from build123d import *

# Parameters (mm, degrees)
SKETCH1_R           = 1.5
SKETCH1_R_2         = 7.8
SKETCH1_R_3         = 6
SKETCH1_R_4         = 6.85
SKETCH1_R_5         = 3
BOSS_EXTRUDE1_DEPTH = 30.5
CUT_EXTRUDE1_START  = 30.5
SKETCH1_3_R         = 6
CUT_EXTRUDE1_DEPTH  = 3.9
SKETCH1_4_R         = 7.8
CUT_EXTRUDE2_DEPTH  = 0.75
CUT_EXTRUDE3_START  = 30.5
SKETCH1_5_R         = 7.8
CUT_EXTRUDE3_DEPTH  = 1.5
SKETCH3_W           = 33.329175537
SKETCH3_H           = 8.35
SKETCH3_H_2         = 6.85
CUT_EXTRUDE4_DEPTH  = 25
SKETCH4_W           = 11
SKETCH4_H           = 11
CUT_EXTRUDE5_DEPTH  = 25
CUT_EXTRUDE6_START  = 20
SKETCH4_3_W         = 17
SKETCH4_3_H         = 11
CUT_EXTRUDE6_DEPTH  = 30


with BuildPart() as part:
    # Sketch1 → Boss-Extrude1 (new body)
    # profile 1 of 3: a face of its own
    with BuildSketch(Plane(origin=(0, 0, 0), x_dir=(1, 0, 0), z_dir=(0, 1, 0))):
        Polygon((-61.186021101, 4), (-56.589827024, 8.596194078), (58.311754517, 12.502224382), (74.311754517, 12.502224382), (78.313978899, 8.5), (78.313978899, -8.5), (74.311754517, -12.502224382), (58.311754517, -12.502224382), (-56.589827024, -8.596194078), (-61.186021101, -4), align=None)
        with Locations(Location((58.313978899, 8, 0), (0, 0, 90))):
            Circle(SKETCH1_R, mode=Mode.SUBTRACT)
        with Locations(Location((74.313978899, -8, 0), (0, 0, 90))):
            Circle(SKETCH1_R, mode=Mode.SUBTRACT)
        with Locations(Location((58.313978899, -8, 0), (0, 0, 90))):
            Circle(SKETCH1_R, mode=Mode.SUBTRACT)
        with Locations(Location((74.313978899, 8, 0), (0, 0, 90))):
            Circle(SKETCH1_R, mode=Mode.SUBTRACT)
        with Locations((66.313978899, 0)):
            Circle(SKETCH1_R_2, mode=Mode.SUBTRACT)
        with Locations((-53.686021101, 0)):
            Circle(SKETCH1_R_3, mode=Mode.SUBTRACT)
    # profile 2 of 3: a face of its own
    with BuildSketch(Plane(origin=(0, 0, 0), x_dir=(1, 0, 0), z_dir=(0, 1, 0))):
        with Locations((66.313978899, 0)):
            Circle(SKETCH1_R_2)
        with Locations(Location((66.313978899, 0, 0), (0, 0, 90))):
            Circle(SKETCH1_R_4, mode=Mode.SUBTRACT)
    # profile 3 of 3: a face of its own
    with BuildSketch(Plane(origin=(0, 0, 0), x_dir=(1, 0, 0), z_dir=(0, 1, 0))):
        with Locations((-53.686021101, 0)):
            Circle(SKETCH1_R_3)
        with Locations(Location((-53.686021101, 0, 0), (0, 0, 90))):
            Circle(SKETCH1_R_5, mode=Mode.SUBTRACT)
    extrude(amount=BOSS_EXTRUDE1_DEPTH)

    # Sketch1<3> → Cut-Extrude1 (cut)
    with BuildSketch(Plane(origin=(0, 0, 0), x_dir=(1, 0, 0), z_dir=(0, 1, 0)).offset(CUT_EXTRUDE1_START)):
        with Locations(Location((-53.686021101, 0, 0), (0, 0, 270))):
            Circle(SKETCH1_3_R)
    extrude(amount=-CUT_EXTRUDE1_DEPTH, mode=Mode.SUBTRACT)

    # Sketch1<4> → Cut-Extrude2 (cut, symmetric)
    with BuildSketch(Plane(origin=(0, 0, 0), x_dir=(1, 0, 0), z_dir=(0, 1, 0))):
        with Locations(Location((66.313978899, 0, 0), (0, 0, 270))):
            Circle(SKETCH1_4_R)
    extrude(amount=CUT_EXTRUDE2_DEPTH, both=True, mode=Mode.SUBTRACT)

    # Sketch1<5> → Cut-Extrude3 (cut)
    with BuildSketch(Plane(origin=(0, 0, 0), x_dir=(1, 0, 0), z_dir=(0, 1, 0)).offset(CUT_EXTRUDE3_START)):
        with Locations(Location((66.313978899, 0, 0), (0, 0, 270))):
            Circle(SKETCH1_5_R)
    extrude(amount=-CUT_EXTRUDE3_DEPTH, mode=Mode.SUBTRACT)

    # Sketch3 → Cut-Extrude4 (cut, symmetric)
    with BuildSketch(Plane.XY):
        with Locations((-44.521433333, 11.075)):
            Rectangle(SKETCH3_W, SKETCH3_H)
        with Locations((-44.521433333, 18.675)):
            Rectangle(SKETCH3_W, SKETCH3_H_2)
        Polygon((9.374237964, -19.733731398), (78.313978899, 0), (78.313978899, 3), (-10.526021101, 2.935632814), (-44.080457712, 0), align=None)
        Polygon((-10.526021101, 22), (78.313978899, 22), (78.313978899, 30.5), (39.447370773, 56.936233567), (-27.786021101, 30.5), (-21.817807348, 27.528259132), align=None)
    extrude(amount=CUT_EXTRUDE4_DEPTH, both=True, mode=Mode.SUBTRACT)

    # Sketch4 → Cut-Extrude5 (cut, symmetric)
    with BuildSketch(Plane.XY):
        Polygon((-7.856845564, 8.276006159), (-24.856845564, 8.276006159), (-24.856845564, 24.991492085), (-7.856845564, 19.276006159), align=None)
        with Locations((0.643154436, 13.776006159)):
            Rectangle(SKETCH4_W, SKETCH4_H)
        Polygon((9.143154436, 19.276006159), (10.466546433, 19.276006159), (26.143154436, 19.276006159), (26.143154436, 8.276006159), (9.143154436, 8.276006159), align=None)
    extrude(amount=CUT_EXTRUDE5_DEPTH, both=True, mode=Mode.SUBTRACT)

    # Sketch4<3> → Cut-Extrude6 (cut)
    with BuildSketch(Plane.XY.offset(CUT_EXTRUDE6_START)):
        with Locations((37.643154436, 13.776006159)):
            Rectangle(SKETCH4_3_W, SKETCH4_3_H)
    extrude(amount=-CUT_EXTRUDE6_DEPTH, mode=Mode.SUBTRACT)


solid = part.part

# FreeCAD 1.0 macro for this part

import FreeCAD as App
import Part
import Sketcher
Q = App.Units.Quantity

doc = App.newDocument("Part")
body = doc.addObject("PartDesign::Body", "Body")

sketch1 = body.newObject("Sketcher::SketchObject", "Sketch")
sketch1.AttachmentSupport = (doc.getObject("XZ_Plane"), [""])
sketch1.MapMode = "FlatFace"
sketch1.addGeometry([
    Part.LineSegment(App.Vector(-56.6, -8.6, 0), App.Vector(-61.2, -4, 0)),
    Part.LineSegment(App.Vector(-61.2, -4, 0), App.Vector(-61.2, 4, 0)),
    Part.LineSegment(App.Vector(-61.2, 4, 0), App.Vector(-56.6, 8.6, 0)),
    Part.LineSegment(App.Vector(-56.6, 8.6, 0), App.Vector(58.3, 12.5, 0)),
    Part.LineSegment(App.Vector(58.3, 12.5, 0), App.Vector(74.3, 12.5, 0)),
    Part.LineSegment(App.Vector(74.3, 12.5, 0), App.Vector(78.3, 8.5, 0)),
    Part.LineSegment(App.Vector(78.3, 8.5, 0), App.Vector(78.3, -8.5, 0)),
    Part.LineSegment(App.Vector(78.3, -8.5, 0), App.Vector(74.3, -12.5, 0)),
    Part.LineSegment(App.Vector(74.3, -12.5, 0), App.Vector(58.3, -12.5, 0)),
    Part.LineSegment(App.Vector(58.3, -12.5, 0), App.Vector(-56.6, -8.6, 0)),
    Part.Circle(App.Vector(74.3, 8, 0), App.Vector(0, 0, 1), 1.5),
    Part.Circle(App.Vector(58.3, 8, 0), App.Vector(0, 0, 1), 1.5),
    Part.Circle(App.Vector(74.3, -8, 0), App.Vector(0, 0, 1), 1.5),
    Part.Circle(App.Vector(58.3, -8, 0), App.Vector(0, 0, 1), 1.5),
    Part.Circle(App.Vector(66.3, 0, 0), App.Vector(0, 0, 1), 6.8),
    Part.Circle(App.Vector(-53.7, 0, 0), App.Vector(0, 0, 1), 3),
], False)
sketch1.addConstraint([
    Sketcher.Constraint("Coincident", 0, 2, 1, 1),
    Sketcher.Constraint("Coincident", 1, 2, 2, 1),
    Sketcher.Constraint("Coincident", 2, 2, 3, 1),
    Sketcher.Constraint("Coincident", 3, 2, 4, 1),
    Sketcher.Constraint("Coincident", 4, 2, 5, 1),
    Sketcher.Constraint("Coincident", 5, 2, 6, 1),
    Sketcher.Constraint("Coincident", 6, 2, 7, 1),
    Sketcher.Constraint("Coincident", 7, 2, 8, 1),
    Sketcher.Constraint("Coincident", 8, 2, 9, 1),
    Sketcher.Constraint("Coincident", 9, 2, 0, 1),
    Sketcher.Constraint("Vertical", 1),
    Sketcher.Constraint("Horizontal", 4),
    Sketcher.Constraint("Vertical", 6),
    Sketcher.Constraint("Horizontal", 8),
    Sketcher.Constraint("Equal", 10, 11),
    Sketcher.Constraint("Equal", 11, 12),
    Sketcher.Constraint("Equal", 12, 13),
    Sketcher.Constraint("Symmetric", 10, 3, 12, 3, -1),
    Sketcher.Constraint("Symmetric", 11, 3, 13, 3, -1),
    Sketcher.Constraint("Symmetric", 4, 2, 7, 2, -1),
    Sketcher.Constraint("Symmetric", 2, 2, 9, 2, -1),
    Sketcher.Constraint("PointOnObject", 14, 3, -1),
    Sketcher.Constraint("PointOnObject", 15, 3, -1),
    Sketcher.Constraint("Perpendicular", 0, 2),
    Sketcher.Constraint("Perpendicular", 2, 5),
    Sketcher.Constraint("Perpendicular", 5, 7),
    Sketcher.Constraint("Horizontal", 10, 3, 11, 3),
    Sketcher.Constraint("Vertical", 3, 2, 8, 2),
    Sketcher.Constraint("Equal", 0, 2),
    Sketcher.Constraint("Diameter", 10, 3.0),
    Sketcher.Constraint("Diameter", 15, 6.0),
    Sketcher.Constraint("Diameter", 14, 13.7),
    Sketcher.Constraint("DistanceX", 4, 1, 4, 2, 16.0),
    Sketcher.Constraint("DistanceY", 1, 1, 1, 2, 8.0),
    Sketcher.Constraint("DistanceY", 6, 2, 6, 1, 17.0),
    Sketcher.Constraint("DistanceY", -1, 1, 10, 3, 8.0),
    Sketcher.Constraint("DistanceX", 11, 3, 10, 3, 16.0),
    Sketcher.Constraint("DistanceX", 14, 3, 10, 3, 8.0),
    Sketcher.Constraint("DistanceX", 15, 3, 11, 3, 112.0),
    Sketcher.Constraint("DistanceX", 10, 3, 5, 2, 4.0),
    Sketcher.Constraint("Distance", 0, 6.5),
    Sketcher.Constraint("DistanceX", 0, 2, 15, 3, 7.5),
    Sketcher.Constraint("Distance", 5, 5.66),
    Sketcher.Constraint("DistanceX", -1, 1, 10, 3, 74.313979),
])
pad1 = body.newObject("PartDesign::Pad", "Pad")
pad1.Profile = sketch1
pad1.Length = 30.5
pad1.Reversed = True

sketch2 = body.newObject("Sketcher::SketchObject", "Sketch001")
sketch2.AttachmentSupport = (doc.getObject("XZ_Plane"), [""])
sketch2.MapMode = "FlatFace"
sketch2.AttachmentOffset = App.Placement(App.Vector(0, 0, -30.5), App.Rotation())
sketch2.addGeometry(Part.Circle(App.Vector(-54, 0, 0), App.Vector(0, 0, 1), 6), False)
sketch2.addConstraint([
    Sketcher.Constraint("PointOnObject", 0, 3, -1),
    Sketcher.Constraint("Diameter", 0, 12.0),
    Sketcher.Constraint("DistanceX", 0, 3, -1, 1, 53.686021),
])
pocket1 = body.newObject("PartDesign::Pocket", "Pocket")
pocket1.Profile = sketch2
pocket1.Length = 3.9
pocket1.Reversed = True

sketch3 = body.newObject("Sketcher::SketchObject", "Sketch002")
sketch3.AttachmentSupport = (doc.getObject("XZ_Plane"), [""])
sketch3.MapMode = "FlatFace"
sketch3.addGeometry(Part.Circle(App.Vector(66, 0, 0), App.Vector(0, 0, 1), 8), False)
sketch3.addConstraint([
    Sketcher.Constraint("PointOnObject", 0, 3, -1),
    Sketcher.Constraint("Diameter", 0, 15.6),
    Sketcher.Constraint("DistanceX", -1, 1, 0, 3, 66.313979),
])
pocket2 = body.newObject("PartDesign::Pocket", "Pocket001")
pocket2.Profile = sketch3
pocket2.Length = 1.5
pocket2.Midplane = True

sketch4 = body.newObject("Sketcher::SketchObject", "Sketch003")
sketch4.AttachmentSupport = (doc.getObject("XZ_Plane"), [""])
sketch4.MapMode = "FlatFace"
sketch4.AttachmentOffset = App.Placement(App.Vector(0, 0, -30.5), App.Rotation())
sketch4.addGeometry(Part.Circle(App.Vector(66, 0, 0), App.Vector(0, 0, 1), 8), False)
sketch4.addConstraint([
    Sketcher.Constraint("PointOnObject", 0, 3, -1),
    Sketcher.Constraint("Diameter", 0, 15.6),
    Sketcher.Constraint("DistanceX", -1, 1, 0, 3, 66.313979),
])
pocket3 = body.newObject("PartDesign::Pocket", "Pocket002")
pocket3.Profile = sketch4
pocket3.Length = 1.5
pocket3.Reversed = True

sketch5 = body.newObject("Sketcher::SketchObject", "Sketch004")
sketch5.AttachmentSupport = (doc.getObject("XY_Plane"), [""])
sketch5.MapMode = "FlatFace"
sketch5.addGeometry([
    Part.LineSegment(App.Vector(-61.2, 6.9, 0), App.Vector(-27.9, 6.9, 0)),
    Part.LineSegment(App.Vector(-27.9, 6.9, 0), App.Vector(-27.9, 22.1, 0)),
    Part.LineSegment(App.Vector(-27.9, 22.1, 0), App.Vector(-61.2, 22.1, 0)),
    Part.LineSegment(App.Vector(-61.2, 22.1, 0), App.Vector(-61.2, 6.9, 0)),
    Part.LineSegment(App.Vector(9.4, -19.7, 0), App.Vector(78.3, 0, 0)),
    Part.LineSegment(App.Vector(78.3, 0, 0), App.Vector(78.3, 3, 0)),
    Part.LineSegment(App.Vector(78.3, 3, 0), App.Vector(-10.5, 2.9, 0)),
    Part.LineSegment(App.Vector(-10.5, 2.9, 0), App.Vector(-44.1, 0, 0)),
    Part.LineSegment(App.Vector(-44.1, 0, 0), App.Vector(9.4, -19.7, 0)),
    Part.LineSegment(App.Vector(-10.5, 22, 0), App.Vector(78.3, 22, 0)),
    Part.LineSegment(App.Vector(78.3, 22, 0), App.Vector(78.3, 30.5, 0)),
    Part.LineSegment(App.Vector(78.3, 30.5, 0), App.Vector(39.4, 56.9, 0)),
    Part.LineSegment(App.Vector(39.4, 56.9, 0), App.Vector(-27.8, 30.5, 0)),
    Part.LineSegment(App.Vector(-27.8, 30.5, 0), App.Vector(-21.8, 27.5, 0)),
    Part.LineSegment(App.Vector(-21.8, 27.5, 0), App.Vector(-10.5, 22, 0)),
], False)
sketch5.addConstraint([
    Sketcher.Constraint("Coincident", 0, 2, 1, 1),
    Sketcher.Constraint("Coincident", 1, 2, 2, 1),
    Sketcher.Constraint("Coincident", 2, 2, 3, 1),
    Sketcher.Constraint("Coincident", 3, 2, 0, 1),
    Sketcher.Constraint("Coincident", 4, 2, 5, 1),
    Sketcher.Constraint("Coincident", 5, 2, 6, 1),
    Sketcher.Constraint("Coincident", 6, 2, 7, 1),
    Sketcher.Constraint("Coincident", 7, 2, 8, 1),
    Sketcher.Constraint("Coincident", 8, 2, 4, 1),
    Sketcher.Constraint("Coincident", 9, 2, 10, 1),
    Sketcher.Constraint("Coincident", 10, 2, 11, 1),
    Sketcher.Constraint("Coincident", 11, 2, 12, 1),
    Sketcher.Constraint("Coincident", 12, 2, 13, 1),
    Sketcher.Constraint("Coincident", 13, 2, 14, 1),
    Sketcher.Constraint("Coincident", 14, 2, 9, 1),
    Sketcher.Constraint("Horizontal", 0),
    Sketcher.Constraint("Vertical", 1),
    Sketcher.Constraint("Horizontal", 2),
    Sketcher.Constraint("Vertical", 3),
    Sketcher.Constraint("Vertical", 5),
    Sketcher.Constraint("Horizontal", 9),
    Sketcher.Constraint("Vertical", 10),
    Sketcher.Constraint("PointOnObject", 4, 2, -1),
    Sketcher.Constraint("PointOnObject", 7, 2, -1),
    Sketcher.Constraint("Horizontal", 10, 2, 12, 2),
    Sketcher.Constraint("Vertical", 5, 2, 9, 2),
    Sketcher.Constraint("Vertical", 6, 2, 14, 2),
    Sketcher.Constraint("DistanceY", 5, 1, 5, 2, 3.0),
    Sketcher.Constraint("Angle", 7, Q("-175 deg")),
    Sketcher.Constraint("DistanceY", 1, 1, 1, 2, 15.2),
    Sketcher.Constraint("DistanceY", 10, 1, 10, 2, 8.5),
    Sketcher.Constraint("DistanceY", -1, 1, 9, 2, 22.0),
    Sketcher.Constraint("DistanceX", 9, 1, 9, 2, 88.84),
    Sketcher.Constraint("DistanceY", -1, 1, 0, 2, 6.9),
    Sketcher.Constraint("Angle", 13, Q("-26.47 deg")),
    Sketcher.Constraint("DistanceX", 3, 2, 4, 2, 139.5),
    Sketcher.Constraint("DistanceX", 2, 2, 12, 2, 33.4),
    Sketcher.Constraint("DistanceY", 6, 2, 11, 2, 54.000601),
    Sketcher.Constraint("Distance", 7, 33.682609),
    Sketcher.Constraint("DistanceX", 0, 1, 0, 2, 33.329176),
    Sketcher.Constraint("DistanceX", 2, 2, -1, 1, 61.186021),
    Sketcher.Constraint("DistanceY", 8, 2, -1, 1, 19.733731),
    Sketcher.Constraint("DistanceX", -1, 1, 11, 2, 39.447371),
    Sketcher.Constraint("DistanceY", -1, 1, 13, 2, 27.528259),
    Sketcher.Constraint("DistanceX", 6, 2, 8, 2, 19.900259),
])
pocket4 = body.newObject("PartDesign::Pocket", "Pocket003")
pocket4.Profile = sketch5
pocket4.Length = 50
pocket4.Midplane = True

sketch6 = body.newObject("Sketcher::SketchObject", "Sketch005")
sketch6.AttachmentSupport = (doc.getObject("XY_Plane"), [""])
sketch6.MapMode = "FlatFace"
sketch6.addGeometry([
    Part.LineSegment(App.Vector(-25, 8, 0), App.Vector(-8, 8, 0)),
    Part.LineSegment(App.Vector(-8, 8, 0), App.Vector(-8, 19, 0)),
    Part.LineSegment(App.Vector(-8, 19, 0), App.Vector(-25, 25, 0)),
    Part.LineSegment(App.Vector(-25, 25, 0), App.Vector(-25, 8, 0)),
    Part.LineSegment(App.Vector(-5, 19, 0), App.Vector(-5, 8, 0)),
    Part.LineSegment(App.Vector(-5, 8, 0), App.Vector(6, 8, 0)),
    Part.LineSegment(App.Vector(6, 8, 0), App.Vector(6, 19, 0)),
    Part.LineSegment(App.Vector(6, 19, 0), App.Vector(-5, 19, 0)),
    Part.LineSegment(App.Vector(26, 19, 0), App.Vector(9, 19, 0)),
    Part.LineSegment(App.Vector(9, 19, 0), App.Vector(9, 8, 0)),
    Part.LineSegment(App.Vector(9, 8, 0), App.Vector(26, 8, 0)),
    Part.LineSegment(App.Vector(26, 8, 0), App.Vector(26, 19, 0)),
], False)
sketch6.addConstraint([
    Sketcher.Constraint("Coincident", 0, 2, 1, 1),
    Sketcher.Constraint("Coincident", 1, 2, 2, 1),
    Sketcher.Constraint("Coincident", 2, 2, 3, 1),
    Sketcher.Constraint("Coincident", 3, 2, 0, 1),
    Sketcher.Constraint("Coincident", 4, 2, 5, 1),
    Sketcher.Constraint("Coincident", 5, 2, 6, 1),
    Sketcher.Constraint("Coincident", 6, 2, 7, 1),
    Sketcher.Constraint("Coincident", 7, 2, 4, 1),
    Sketcher.Constraint("Coincident", 8, 2, 9, 1),
    Sketcher.Constraint("Coincident", 9, 2, 10, 1),
    Sketcher.Constraint("Coincident", 10, 2, 11, 1),
    Sketcher.Constraint("Coincident", 11, 2, 8, 1),
    Sketcher.Constraint("Horizontal", 0),
    Sketcher.Constraint("Vertical", 1),
    Sketcher.Constraint("Vertical", 3),
    Sketcher.Constraint("Vertical", 4),
    Sketcher.Constraint("Horizontal", 5),
    Sketcher.Constraint("Vertical", 6),
    Sketcher.Constraint("Horizontal", 7),
    Sketcher.Constraint("Horizontal", 8),
    Sketcher.Constraint("Vertical", 9),
    Sketcher.Constraint("Horizontal", 10),
    Sketcher.Constraint("Vertical", 11),
    Sketcher.Constraint("Horizontal", 3, 2, 4, 2),
    Sketcher.Constraint("Horizontal", 1, 2, 6, 2),
    Sketcher.Constraint("Horizontal", 7, 2, 8, 2),
    Sketcher.Constraint("Horizontal", 5, 2, 9, 2),
    Sketcher.Constraint("Equal", 0, 8),
    Sketcher.Constraint("Equal", 7, 1),
    Sketcher.Constraint("DistanceX", 0, 1, 0, 2, 17.0),
    Sketcher.Constraint("DistanceX", 5, 1, 5, 2, 11.0),
    Sketcher.Constraint("DistanceX", 0, 2, 4, 2, 3.0),
    Sketcher.Constraint("DistanceX", 6, 2, 8, 2, 3.0),
    Sketcher.Constraint("Distance", 2, 17.935071),
    Sketcher.Constraint("DistanceX", 0, 2, -1, 1, 7.856846),
    Sketcher.Constraint("DistanceY", -1, 1, 0, 2, 8.276006),
])
pocket5 = body.newObject("PartDesign::Pocket", "Pocket004")
pocket5.Profile = sketch6
pocket5.Length = 50
pocket5.Midplane = True

sketch7 = body.newObject("Sketcher::SketchObject", "Sketch006")
sketch7.AttachmentSupport = (doc.getObject("XY_Plane"), [""])
sketch7.MapMode = "FlatFace"
sketch7.AttachmentOffset = App.Placement(App.Vector(0, 0, 20), App.Rotation())
sketch7.addGeometry([
    Part.LineSegment(App.Vector(29, 19, 0), App.Vector(29, 8, 0)),
    Part.LineSegment(App.Vector(29, 8, 0), App.Vector(46, 8, 0)),
    Part.LineSegment(App.Vector(46, 8, 0), App.Vector(46, 19, 0)),
    Part.LineSegment(App.Vector(46, 19, 0), App.Vector(29, 19, 0)),
], False)
sketch7.addConstraint([
    Sketcher.Constraint("Coincident", 0, 2, 1, 1),
    Sketcher.Constraint("Coincident", 1, 2, 2, 1),
    Sketcher.Constraint("Coincident", 2, 2, 3, 1),
    Sketcher.Constraint("Coincident", 3, 2, 0, 1),
    Sketcher.Constraint("Vertical", 0),
    Sketcher.Constraint("Horizontal", 1),
    Sketcher.Constraint("Vertical", 2),
    Sketcher.Constraint("Horizontal", 3),
    Sketcher.Constraint("DistanceX", 1, 1, 1, 2, 17.0),
    Sketcher.Constraint("DistanceY", 0, 2, 0, 1, 11.0),
    Sketcher.Constraint("DistanceX", -1, 1, 0, 2, 29.143154),
    Sketcher.Constraint("DistanceY", -1, 1, 0, 2, 8.276006),
])
pocket6 = body.newObject("PartDesign::Pocket", "Pocket005")
pocket6.Profile = sketch7
pocket6.Length = 30

doc.recompute()
